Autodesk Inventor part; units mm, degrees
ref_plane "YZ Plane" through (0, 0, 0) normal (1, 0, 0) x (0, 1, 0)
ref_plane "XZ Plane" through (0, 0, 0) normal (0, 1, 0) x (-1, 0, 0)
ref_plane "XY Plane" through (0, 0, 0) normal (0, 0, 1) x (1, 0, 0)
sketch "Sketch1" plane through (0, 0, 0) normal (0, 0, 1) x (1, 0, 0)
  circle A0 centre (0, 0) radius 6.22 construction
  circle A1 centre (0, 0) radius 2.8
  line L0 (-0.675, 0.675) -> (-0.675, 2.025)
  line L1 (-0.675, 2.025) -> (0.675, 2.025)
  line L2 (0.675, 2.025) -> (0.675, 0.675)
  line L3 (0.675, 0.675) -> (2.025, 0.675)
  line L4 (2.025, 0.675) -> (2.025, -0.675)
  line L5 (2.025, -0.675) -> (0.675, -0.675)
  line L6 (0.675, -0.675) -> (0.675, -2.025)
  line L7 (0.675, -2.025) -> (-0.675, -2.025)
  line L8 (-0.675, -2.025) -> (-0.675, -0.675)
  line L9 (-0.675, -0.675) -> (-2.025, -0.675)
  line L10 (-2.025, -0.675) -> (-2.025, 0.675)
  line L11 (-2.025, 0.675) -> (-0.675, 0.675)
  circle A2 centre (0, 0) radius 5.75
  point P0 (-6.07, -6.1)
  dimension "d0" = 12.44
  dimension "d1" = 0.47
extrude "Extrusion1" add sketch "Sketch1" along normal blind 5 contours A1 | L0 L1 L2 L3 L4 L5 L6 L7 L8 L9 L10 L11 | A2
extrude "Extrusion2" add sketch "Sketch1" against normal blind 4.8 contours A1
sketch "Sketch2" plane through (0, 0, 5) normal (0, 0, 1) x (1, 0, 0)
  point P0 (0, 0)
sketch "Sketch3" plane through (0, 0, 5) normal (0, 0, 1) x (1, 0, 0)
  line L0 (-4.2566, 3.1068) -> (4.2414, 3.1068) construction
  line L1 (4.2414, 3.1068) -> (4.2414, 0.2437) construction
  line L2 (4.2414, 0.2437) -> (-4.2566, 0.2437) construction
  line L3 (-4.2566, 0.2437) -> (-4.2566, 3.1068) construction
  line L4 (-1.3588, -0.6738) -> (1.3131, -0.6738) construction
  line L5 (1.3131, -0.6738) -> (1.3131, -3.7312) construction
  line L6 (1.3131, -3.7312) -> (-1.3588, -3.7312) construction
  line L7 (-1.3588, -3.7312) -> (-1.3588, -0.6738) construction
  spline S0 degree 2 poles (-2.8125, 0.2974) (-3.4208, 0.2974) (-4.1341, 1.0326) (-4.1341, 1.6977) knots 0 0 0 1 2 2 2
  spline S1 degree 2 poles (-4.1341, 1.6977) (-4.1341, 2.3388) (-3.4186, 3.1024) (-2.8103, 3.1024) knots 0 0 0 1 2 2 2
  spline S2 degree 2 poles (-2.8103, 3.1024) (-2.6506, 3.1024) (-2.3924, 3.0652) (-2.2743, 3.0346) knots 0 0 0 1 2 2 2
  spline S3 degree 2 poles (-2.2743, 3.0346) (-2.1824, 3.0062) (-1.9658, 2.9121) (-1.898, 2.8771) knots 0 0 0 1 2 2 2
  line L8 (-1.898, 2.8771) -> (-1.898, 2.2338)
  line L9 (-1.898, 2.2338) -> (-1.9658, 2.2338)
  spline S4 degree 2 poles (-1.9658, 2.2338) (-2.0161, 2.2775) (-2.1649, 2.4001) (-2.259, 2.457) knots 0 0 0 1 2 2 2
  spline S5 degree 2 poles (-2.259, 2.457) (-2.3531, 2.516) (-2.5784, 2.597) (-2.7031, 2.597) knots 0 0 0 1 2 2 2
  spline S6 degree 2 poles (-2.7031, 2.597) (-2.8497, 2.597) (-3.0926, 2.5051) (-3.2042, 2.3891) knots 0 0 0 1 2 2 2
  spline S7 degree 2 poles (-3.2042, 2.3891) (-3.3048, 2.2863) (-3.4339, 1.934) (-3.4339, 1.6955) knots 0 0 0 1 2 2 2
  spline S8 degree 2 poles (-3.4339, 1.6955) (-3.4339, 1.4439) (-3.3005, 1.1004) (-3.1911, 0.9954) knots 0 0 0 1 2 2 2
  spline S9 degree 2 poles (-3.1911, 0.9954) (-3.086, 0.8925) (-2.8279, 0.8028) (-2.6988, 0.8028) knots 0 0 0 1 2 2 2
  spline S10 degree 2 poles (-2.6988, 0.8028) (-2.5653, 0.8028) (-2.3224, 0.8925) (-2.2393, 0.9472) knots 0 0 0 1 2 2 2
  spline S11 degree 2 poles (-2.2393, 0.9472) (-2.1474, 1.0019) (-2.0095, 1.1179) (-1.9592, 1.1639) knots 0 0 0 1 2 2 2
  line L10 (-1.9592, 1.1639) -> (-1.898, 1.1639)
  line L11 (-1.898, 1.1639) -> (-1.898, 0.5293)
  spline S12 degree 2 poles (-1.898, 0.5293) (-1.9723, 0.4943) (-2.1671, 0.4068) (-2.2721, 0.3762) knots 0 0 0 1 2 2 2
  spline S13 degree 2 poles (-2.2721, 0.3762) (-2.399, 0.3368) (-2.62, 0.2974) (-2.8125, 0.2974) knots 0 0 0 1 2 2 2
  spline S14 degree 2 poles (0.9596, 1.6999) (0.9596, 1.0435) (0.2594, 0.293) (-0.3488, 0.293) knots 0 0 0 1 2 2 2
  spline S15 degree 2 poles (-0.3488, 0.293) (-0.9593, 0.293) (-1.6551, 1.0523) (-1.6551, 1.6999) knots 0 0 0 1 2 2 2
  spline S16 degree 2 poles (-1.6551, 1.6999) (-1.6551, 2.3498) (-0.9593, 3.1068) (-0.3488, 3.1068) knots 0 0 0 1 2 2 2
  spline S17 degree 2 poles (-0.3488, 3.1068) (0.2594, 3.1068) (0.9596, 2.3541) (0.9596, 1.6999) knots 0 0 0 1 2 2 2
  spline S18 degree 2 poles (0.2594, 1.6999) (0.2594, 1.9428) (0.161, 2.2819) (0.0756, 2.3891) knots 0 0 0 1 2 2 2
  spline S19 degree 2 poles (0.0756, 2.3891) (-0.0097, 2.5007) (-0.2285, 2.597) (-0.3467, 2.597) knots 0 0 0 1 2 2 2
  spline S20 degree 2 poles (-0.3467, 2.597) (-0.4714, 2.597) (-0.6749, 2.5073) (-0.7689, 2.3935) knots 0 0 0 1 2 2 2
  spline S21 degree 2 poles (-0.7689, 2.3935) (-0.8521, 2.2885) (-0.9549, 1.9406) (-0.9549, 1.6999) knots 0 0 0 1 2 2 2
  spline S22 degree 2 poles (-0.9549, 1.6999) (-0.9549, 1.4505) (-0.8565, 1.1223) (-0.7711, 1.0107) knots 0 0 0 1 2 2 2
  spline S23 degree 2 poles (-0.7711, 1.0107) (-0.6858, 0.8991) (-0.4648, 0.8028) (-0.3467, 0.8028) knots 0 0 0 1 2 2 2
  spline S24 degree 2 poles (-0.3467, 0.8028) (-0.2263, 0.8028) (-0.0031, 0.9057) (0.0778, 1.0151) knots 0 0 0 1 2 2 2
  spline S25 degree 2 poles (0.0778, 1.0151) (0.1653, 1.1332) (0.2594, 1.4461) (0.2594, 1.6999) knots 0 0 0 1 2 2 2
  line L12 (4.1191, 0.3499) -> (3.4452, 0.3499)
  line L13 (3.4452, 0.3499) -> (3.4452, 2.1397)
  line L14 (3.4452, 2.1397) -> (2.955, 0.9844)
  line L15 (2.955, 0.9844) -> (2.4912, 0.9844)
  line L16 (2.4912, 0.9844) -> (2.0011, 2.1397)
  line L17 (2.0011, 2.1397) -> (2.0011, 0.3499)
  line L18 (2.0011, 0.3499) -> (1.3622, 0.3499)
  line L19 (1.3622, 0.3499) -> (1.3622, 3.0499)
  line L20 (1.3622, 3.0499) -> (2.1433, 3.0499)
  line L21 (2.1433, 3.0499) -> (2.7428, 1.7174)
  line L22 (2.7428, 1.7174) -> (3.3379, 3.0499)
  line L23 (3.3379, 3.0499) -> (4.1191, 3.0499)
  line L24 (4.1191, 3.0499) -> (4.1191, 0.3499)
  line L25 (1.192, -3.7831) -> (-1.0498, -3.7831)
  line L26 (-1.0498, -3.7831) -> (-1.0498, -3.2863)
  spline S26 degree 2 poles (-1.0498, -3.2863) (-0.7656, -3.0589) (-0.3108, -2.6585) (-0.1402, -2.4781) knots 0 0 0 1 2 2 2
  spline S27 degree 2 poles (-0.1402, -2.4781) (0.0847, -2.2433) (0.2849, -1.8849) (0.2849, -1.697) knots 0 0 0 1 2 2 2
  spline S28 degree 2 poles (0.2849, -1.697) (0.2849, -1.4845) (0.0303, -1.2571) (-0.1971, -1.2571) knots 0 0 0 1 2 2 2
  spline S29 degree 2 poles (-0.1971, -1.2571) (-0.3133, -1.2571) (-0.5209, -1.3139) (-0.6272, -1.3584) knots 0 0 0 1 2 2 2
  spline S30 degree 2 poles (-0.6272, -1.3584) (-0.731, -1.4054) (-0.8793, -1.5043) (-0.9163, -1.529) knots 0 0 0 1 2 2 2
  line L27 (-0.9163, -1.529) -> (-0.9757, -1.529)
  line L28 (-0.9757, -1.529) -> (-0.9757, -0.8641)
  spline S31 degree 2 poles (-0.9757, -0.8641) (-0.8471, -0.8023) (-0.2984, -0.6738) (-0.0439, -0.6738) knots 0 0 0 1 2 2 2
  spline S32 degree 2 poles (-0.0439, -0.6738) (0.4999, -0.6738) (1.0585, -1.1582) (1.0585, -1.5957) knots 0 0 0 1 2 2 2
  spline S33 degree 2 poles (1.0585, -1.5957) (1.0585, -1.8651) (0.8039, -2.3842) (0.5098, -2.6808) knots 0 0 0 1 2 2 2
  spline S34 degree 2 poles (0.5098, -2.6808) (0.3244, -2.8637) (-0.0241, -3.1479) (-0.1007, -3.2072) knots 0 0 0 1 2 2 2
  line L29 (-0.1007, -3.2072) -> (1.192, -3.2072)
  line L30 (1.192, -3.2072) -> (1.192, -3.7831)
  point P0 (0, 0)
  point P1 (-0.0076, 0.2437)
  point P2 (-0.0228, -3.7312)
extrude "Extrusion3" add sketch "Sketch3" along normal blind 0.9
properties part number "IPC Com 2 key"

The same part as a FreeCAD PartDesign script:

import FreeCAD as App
import Part
import Sketcher


def add_polygon(sketch, points):
    """Adds a closed chain of lines whose ends are joined by coincident constraints."""
    first, n = sketch.GeometryCount, len(points)
    for a, b in zip(points, points[1:] + points[:1]):
        sketch.addGeometry(Part.LineSegment(App.Vector(*a, 0), App.Vector(*b, 0)), False)
    for i in range(n):
        sketch.addConstraint(Sketcher.Constraint("Coincident", first + i, 2, first + (i + 1) % n, 1))

doc = App.newDocument("Part")
body = doc.addObject("PartDesign::Body", "Body")

sketch1 = body.newObject("Sketcher::SketchObject", "Sketch")
sketch1.AttachmentSupport = (doc.getObject("XY_Plane"), [""])
sketch1.MapMode = "FlatFace"
sketch1.addGeometry(Part.Circle(App.Vector(0, 0, 0), App.Vector(0, 0, 1), 6), False)
sketch1.addConstraint(Sketcher.Constraint("Coincident", 0, 3, -1, 1))
sketch1.addConstraint(Sketcher.Constraint("Diameter", 0, 11.5))
pad1 = body.newObject("PartDesign::Pad", "Pad")
pad1.Profile = sketch1
pad1.Length = 5

sketch2 = body.newObject("Sketcher::SketchObject", "Sketch001")
sketch2.AttachmentSupport = (doc.getObject("XY_Plane"), [""])
sketch2.MapMode = "FlatFace"
sketch2.addGeometry(Part.Circle(App.Vector(0, 0, 0), App.Vector(0, 0, 1), 2.8), False)
add_polygon(sketch2, [(-2, 0.7), (-0.7, 0.7), (-0.7, 2), (0.7, 2), (0.7, 0.7), (2, 0.7), (2, -0.7), (0.7, -0.7), (0.7, -2), (-0.7, -2), (-0.7, -0.7), (-2, -0.7)])
sketch2.addConstraint(Sketcher.Constraint("Horizontal", 1))
sketch2.addConstraint(Sketcher.Constraint("Vertical", 2))
sketch2.addConstraint(Sketcher.Constraint("Horizontal", 3))
sketch2.addConstraint(Sketcher.Constraint("Vertical", 4))
sketch2.addConstraint(Sketcher.Constraint("Horizontal", 5))
sketch2.addConstraint(Sketcher.Constraint("Vertical", 6))
sketch2.addConstraint(Sketcher.Constraint("Horizontal", 7))
sketch2.addConstraint(Sketcher.Constraint("Vertical", 8))
sketch2.addConstraint(Sketcher.Constraint("Horizontal", 9))
sketch2.addConstraint(Sketcher.Constraint("Vertical", 10))
sketch2.addConstraint(Sketcher.Constraint("Horizontal", 11))
sketch2.addConstraint(Sketcher.Constraint("Vertical", 12))
sketch2.addConstraint(Sketcher.Constraint("Coincident", 0, 3, -1, 1))
sketch2.addConstraint(Sketcher.Constraint("Symmetric", 1, 2, 7, 2, -1, 1))
sketch2.addConstraint(Sketcher.Constraint("Symmetric", 3, 2, 9, 2, -1, 1))
sketch2.addConstraint(Sketcher.Constraint("Symmetric", 5, 2, 11, 2, -1, 1))
sketch2.addConstraint(Sketcher.Constraint("Symmetric", 1, 2, 4, 2, -2))
sketch2.addConstraint(Sketcher.Constraint("Equal", 1, 3))
sketch2.addConstraint(Sketcher.Constraint("Equal", 11, 2))
sketch2.addConstraint(Sketcher.Constraint("Equal", 4, 6))
sketch2.addConstraint(Sketcher.Constraint("Diameter", 0, 5.6))
sketch2.addConstraint(Sketcher.Constraint("DistanceX", 1, 1, 1, 2, 1.35))
pad2 = body.newObject("PartDesign::Pad", "Pad001")
pad2.Profile = sketch2
pad2.Length = 4.8
pad2.Reversed = True

sketch3 = body.newObject("Sketcher::SketchObject", "Sketch002")
sketch3.AttachmentSupport = (doc.getObject("XY_Plane"), [""])
sketch3.MapMode = "FlatFace"
sketch3.AttachmentOffset = App.Placement(App.Vector(0, 0, 5), App.Rotation())
sketch3.addGeometry(Part.BSplineCurve([App.Vector(-2.8125, 0.2974, 0), App.Vector(-3.4208, 0.2974, 0), App.Vector(-4.1341, 1.0326, 0), App.Vector(-4.1341, 1.6977, 0)], [3, 1, 3], [0, 1, 2], False, 2, [1, 1, 1, 1], False), False)
sketch3.addGeometry(Part.BSplineCurve([App.Vector(-2.2721, 0.3762, 0), App.Vector(-2.399, 0.3368, 0), App.Vector(-2.62, 0.2974, 0), App.Vector(-2.8125, 0.2974, 0)], [3, 1, 3], [0, 1, 2], False, 2, [1, 1, 1, 1], False), False)
sketch3.addGeometry(Part.BSplineCurve([App.Vector(-1.898, 0.5293, 0), App.Vector(-1.9723, 0.4943, 0), App.Vector(-2.1671, 0.4068, 0), App.Vector(-2.2721, 0.3762, 0)], [3, 1, 3], [0, 1, 2], False, 2, [1, 1, 1, 1], False), False)
sketch3.addGeometry(Part.LineSegment(App.Vector(-1.898, 0.5293, 0), App.Vector(-1.898, 1.1639, 0)), False)
sketch3.addGeometry(Part.LineSegment(App.Vector(-1.898, 1.1639, 0), App.Vector(-1.9592, 1.1639, 0)), False)
sketch3.addGeometry(Part.BSplineCurve([App.Vector(-2.2393, 0.9472, 0), App.Vector(-2.1474, 1.0019, 0), App.Vector(-2.0095, 1.1179, 0), App.Vector(-1.9592, 1.1639, 0)], [3, 1, 3], [0, 1, 2], False, 2, [1, 1, 1, 1], False), False)
sketch3.addGeometry(Part.BSplineCurve([App.Vector(-2.6988, 0.8028, 0), App.Vector(-2.5653, 0.8028, 0), App.Vector(-2.3224, 0.8925, 0), App.Vector(-2.2393, 0.9472, 0)], [3, 1, 3], [0, 1, 2], False, 2, [1, 1, 1, 1], False), False)
sketch3.addGeometry(Part.BSplineCurve([App.Vector(-3.1911, 0.9954, 0), App.Vector(-3.086, 0.8925, 0), App.Vector(-2.8279, 0.8028, 0), App.Vector(-2.6988, 0.8028, 0)], [3, 1, 3], [0, 1, 2], False, 2, [1, 1, 1, 1], False), False)
sketch3.addGeometry(Part.BSplineCurve([App.Vector(-3.4339, 1.6955, 0), App.Vector(-3.4339, 1.4439, 0), App.Vector(-3.3005, 1.1004, 0), App.Vector(-3.1911, 0.9954, 0)], [3, 1, 3], [0, 1, 2], False, 2, [1, 1, 1, 1], False), False)
sketch3.addGeometry(Part.BSplineCurve([App.Vector(-3.2042, 2.3891, 0), App.Vector(-3.3048, 2.2863, 0), App.Vector(-3.4339, 1.934, 0), App.Vector(-3.4339, 1.6955, 0)], [3, 1, 3], [0, 1, 2], False, 2, [1, 1, 1, 1], False), False)
sketch3.addGeometry(Part.BSplineCurve([App.Vector(-2.7031, 2.597, 0), App.Vector(-2.8497, 2.597, 0), App.Vector(-3.0926, 2.5051, 0), App.Vector(-3.2042, 2.3891, 0)], [3, 1, 3], [0, 1, 2], False, 2, [1, 1, 1, 1], False), False)
sketch3.addGeometry(Part.BSplineCurve([App.Vector(-2.259, 2.457, 0), App.Vector(-2.3531, 2.516, 0), App.Vector(-2.5784, 2.597, 0), App.Vector(-2.7031, 2.597, 0)], [3, 1, 3], [0, 1, 2], False, 2, [1, 1, 1, 1], False), False)
sketch3.addGeometry(Part.BSplineCurve([App.Vector(-1.9658, 2.2338, 0), App.Vector(-2.0161, 2.2775, 0), App.Vector(-2.1649, 2.4001, 0), App.Vector(-2.259, 2.457, 0)], [3, 1, 3], [0, 1, 2], False, 2, [1, 1, 1, 1], False), False)
sketch3.addGeometry(Part.LineSegment(App.Vector(-1.9658, 2.2338, 0), App.Vector(-1.898, 2.2338, 0)), False)
sketch3.addGeometry(Part.LineSegment(App.Vector(-1.898, 2.2338, 0), App.Vector(-1.898, 2.8771, 0)), False)
sketch3.addGeometry(Part.BSplineCurve([App.Vector(-2.2743, 3.0346, 0), App.Vector(-2.1824, 3.0062, 0), App.Vector(-1.9658, 2.9121, 0), App.Vector(-1.898, 2.8771, 0)], [3, 1, 3], [0, 1, 2], False, 2, [1, 1, 1, 1], False), False)
sketch3.addGeometry(Part.BSplineCurve([App.Vector(-2.8103, 3.1024, 0), App.Vector(-2.6506, 3.1024, 0), App.Vector(-2.3924, 3.0652, 0), App.Vector(-2.2743, 3.0346, 0)], [3, 1, 3], [0, 1, 2], False, 2, [1, 1, 1, 1], False), False)
sketch3.addGeometry(Part.BSplineCurve([App.Vector(-4.1341, 1.6977, 0), App.Vector(-4.1341, 2.3388, 0), App.Vector(-3.4186, 3.1024, 0), App.Vector(-2.8103, 3.1024, 0)], [3, 1, 3], [0, 1, 2], False, 2, [1, 1, 1, 1], False), False)
sketch3.addGeometry(Part.BSplineCurve([App.Vector(0.9596, 1.6999, 0), App.Vector(0.9596, 1.0435, 0), App.Vector(0.2594, 0.293, 0), App.Vector(-0.3488, 0.293, 0)], [3, 1, 3], [0, 1, 2], False, 2, [1, 1, 1, 1], False), False)
sketch3.addGeometry(Part.BSplineCurve([App.Vector(-0.3488, 3.1068, 0), App.Vector(0.2594, 3.1068, 0), App.Vector(0.9596, 2.3541, 0), App.Vector(0.9596, 1.6999, 0)], [3, 1, 3], [0, 1, 2], False, 2, [1, 1, 1, 1], False), False)
sketch3.addGeometry(Part.BSplineCurve([App.Vector(-1.6551, 1.6999, 0), App.Vector(-1.6551, 2.3498, 0), App.Vector(-0.9593, 3.1068, 0), App.Vector(-0.3488, 3.1068, 0)], [3, 1, 3], [0, 1, 2], False, 2, [1, 1, 1, 1], False), False)
sketch3.addGeometry(Part.BSplineCurve([App.Vector(-0.3488, 0.293, 0), App.Vector(-0.9593, 0.293, 0), App.Vector(-1.6551, 1.0523, 0), App.Vector(-1.6551, 1.6999, 0)], [3, 1, 3], [0, 1, 2], False, 2, [1, 1, 1, 1], False), False)
sketch3.addGeometry(Part.BSplineCurve([App.Vector(0.2594, 1.6999, 0), App.Vector(0.2594, 1.9428, 0), App.Vector(0.161, 2.2819, 0), App.Vector(0.0756, 2.3891, 0)], [3, 1, 3], [0, 1, 2], False, 2, [1, 1, 1, 1], False), False)
sketch3.addGeometry(Part.BSplineCurve([App.Vector(0.0778, 1.0151, 0), App.Vector(0.1653, 1.1332, 0), App.Vector(0.2594, 1.4461, 0), App.Vector(0.2594, 1.6999, 0)], [3, 1, 3], [0, 1, 2], False, 2, [1, 1, 1, 1], False), False)
sketch3.addGeometry(Part.BSplineCurve([App.Vector(-0.3467, 0.8028, 0), App.Vector(-0.2263, 0.8028, 0), App.Vector(-0.0031, 0.9057, 0), App.Vector(0.0778, 1.0151, 0)], [3, 1, 3], [0, 1, 2], False, 2, [1, 1, 1, 1], False), False)
sketch3.addGeometry(Part.BSplineCurve([App.Vector(-0.7711, 1.0107, 0), App.Vector(-0.6858, 0.8991, 0), App.Vector(-0.4648, 0.8028, 0), App.Vector(-0.3467, 0.8028, 0)], [3, 1, 3], [0, 1, 2], False, 2, [1, 1, 1, 1], False), False)
sketch3.addGeometry(Part.BSplineCurve([App.Vector(-0.9549, 1.6999, 0), App.Vector(-0.9549, 1.4505, 0), App.Vector(-0.8565, 1.1223, 0), App.Vector(-0.7711, 1.0107, 0)], [3, 1, 3], [0, 1, 2], False, 2, [1, 1, 1, 1], False), False)
sketch3.addGeometry(Part.BSplineCurve([App.Vector(-0.7689, 2.3935, 0), App.Vector(-0.8521, 2.2885, 0), App.Vector(-0.9549, 1.9406, 0), App.Vector(-0.9549, 1.6999, 0)], [3, 1, 3], [0, 1, 2], False, 2, [1, 1, 1, 1], False), False)
sketch3.addGeometry(Part.BSplineCurve([App.Vector(-0.3467, 2.597, 0), App.Vector(-0.4714, 2.597, 0), App.Vector(-0.6749, 2.5073, 0), App.Vector(-0.7689, 2.3935, 0)], [3, 1, 3], [0, 1, 2], False, 2, [1, 1, 1, 1], False), False)
sketch3.addGeometry(Part.BSplineCurve([App.Vector(0.0756, 2.3891, 0), App.Vector(-0.0097, 2.5007, 0), App.Vector(-0.2285, 2.597, 0), App.Vector(-0.3467, 2.597, 0)], [3, 1, 3], [0, 1, 2], False, 2, [1, 1, 1, 1], False), False)
add_polygon(sketch3, [(3.4452, 0.3499), (4.1191, 0.3499), (4.1191, 3.0499), (3.3379, 3.0499), (2.7428, 1.7174), (2.1433, 3.0499), (1.3622, 3.0499), (1.3622, 0.3499), (2.0011, 0.3499), (2.0011, 2.1397), (2.4912, 0.9844), (2.955, 0.9844), (3.4452, 2.1397)])
sketch3.addGeometry(Part.LineSegment(App.Vector(-1.0498, -3.7831, 0), App.Vector(1.192, -3.7831, 0)), False)
sketch3.addGeometry(Part.LineSegment(App.Vector(1.192, -3.7831, 0), App.Vector(1.192, -3.2072, 0)), False)
sketch3.addGeometry(Part.LineSegment(App.Vector(1.192, -3.2072, 0), App.Vector(-0.1007, -3.2072, 0)), False)
sketch3.addGeometry(Part.BSplineCurve([App.Vector(0.5098, -2.6808, 0), App.Vector(0.3244, -2.8637, 0), App.Vector(-0.0241, -3.1479, 0), App.Vector(-0.1007, -3.2072, 0)], [3, 1, 3], [0, 1, 2], False, 2, [1, 1, 1, 1], False), False)
sketch3.addGeometry(Part.BSplineCurve([App.Vector(1.0585, -1.5957, 0), App.Vector(1.0585, -1.8651, 0), App.Vector(0.8039, -2.3842, 0), App.Vector(0.5098, -2.6808, 0)], [3, 1, 3], [0, 1, 2], False, 2, [1, 1, 1, 1], False), False)
sketch3.addGeometry(Part.BSplineCurve([App.Vector(-0.0439, -0.6738, 0), App.Vector(0.4999, -0.6738, 0), App.Vector(1.0585, -1.1582, 0), App.Vector(1.0585, -1.5957, 0)], [3, 1, 3], [0, 1, 2], False, 2, [1, 1, 1, 1], False), False)
sketch3.addGeometry(Part.BSplineCurve([App.Vector(-0.9757, -0.8641, 0), App.Vector(-0.8471, -0.8023, 0), App.Vector(-0.2984, -0.6738, 0), App.Vector(-0.0439, -0.6738, 0)], [3, 1, 3], [0, 1, 2], False, 2, [1, 1, 1, 1], False), False)
sketch3.addGeometry(Part.LineSegment(App.Vector(-0.9757, -0.8641, 0), App.Vector(-0.9757, -1.529, 0)), False)
sketch3.addGeometry(Part.LineSegment(App.Vector(-0.9757, -1.529, 0), App.Vector(-0.9163, -1.529, 0)), False)
sketch3.addGeometry(Part.BSplineCurve([App.Vector(-0.6272, -1.3584, 0), App.Vector(-0.731, -1.4054, 0), App.Vector(-0.8793, -1.5043, 0), App.Vector(-0.9163, -1.529, 0)], [3, 1, 3], [0, 1, 2], False, 2, [1, 1, 1, 1], False), False)
sketch3.addGeometry(Part.BSplineCurve([App.Vector(-0.1971, -1.2571, 0), App.Vector(-0.3133, -1.2571, 0), App.Vector(-0.5209, -1.3139, 0), App.Vector(-0.6272, -1.3584, 0)], [3, 1, 3], [0, 1, 2], False, 2, [1, 1, 1, 1], False), False)
sketch3.addGeometry(Part.BSplineCurve([App.Vector(0.2849, -1.697, 0), App.Vector(0.2849, -1.4845, 0), App.Vector(0.0303, -1.2571, 0), App.Vector(-0.1971, -1.2571, 0)], [3, 1, 3], [0, 1, 2], False, 2, [1, 1, 1, 1], False), False)
sketch3.addGeometry(Part.BSplineCurve([App.Vector(-0.1402, -2.4781, 0), App.Vector(0.0847, -2.2433, 0), App.Vector(0.2849, -1.8849, 0), App.Vector(0.2849, -1.697, 0)], [3, 1, 3], [0, 1, 2], False, 2, [1, 1, 1, 1], False), False)
sketch3.addGeometry(Part.BSplineCurve([App.Vector(-1.0498, -3.2863, 0), App.Vector(-0.7656, -3.0589, 0), App.Vector(-0.3108, -2.6585, 0), App.Vector(-0.1402, -2.4781, 0)], [3, 1, 3], [0, 1, 2], False, 2, [1, 1, 1, 1], False), False)
sketch3.addGeometry(Part.LineSegment(App.Vector(-1.0498, -3.2863, 0), App.Vector(-1.0498, -3.7831, 0)), False)
sketch3.addConstraint(Sketcher.Constraint("Block", 0))
sketch3.addConstraint(Sketcher.Constraint("Block", 1))
sketch3.addConstraint(Sketcher.Constraint("Block", 2))
sketch3.addConstraint(Sketcher.Constraint("Block", 5))
sketch3.addConstraint(Sketcher.Constraint("Block", 6))
sketch3.addConstraint(Sketcher.Constraint("Block", 7))
sketch3.addConstraint(Sketcher.Constraint("Block", 8))
sketch3.addConstraint(Sketcher.Constraint("Block", 9))
sketch3.addConstraint(Sketcher.Constraint("Block", 10))
sketch3.addConstraint(Sketcher.Constraint("Block", 11))
sketch3.addConstraint(Sketcher.Constraint("Block", 12))
sketch3.addConstraint(Sketcher.Constraint("Block", 15))
sketch3.addConstraint(Sketcher.Constraint("Block", 16))
sketch3.addConstraint(Sketcher.Constraint("Block", 17))
sketch3.addConstraint(Sketcher.Constraint("Block", 18))
sketch3.addConstraint(Sketcher.Constraint("Block", 19))
sketch3.addConstraint(Sketcher.Constraint("Block", 20))
sketch3.addConstraint(Sketcher.Constraint("Block", 21))
sketch3.addConstraint(Sketcher.Constraint("Block", 22))
sketch3.addConstraint(Sketcher.Constraint("Block", 23))
sketch3.addConstraint(Sketcher.Constraint("Block", 24))
sketch3.addConstraint(Sketcher.Constraint("Block", 25))
sketch3.addConstraint(Sketcher.Constraint("Block", 26))
sketch3.addConstraint(Sketcher.Constraint("Block", 27))
sketch3.addConstraint(Sketcher.Constraint("Block", 28))
sketch3.addConstraint(Sketcher.Constraint("Block", 29))
sketch3.addConstraint(Sketcher.Constraint("Block", 46))
sketch3.addConstraint(Sketcher.Constraint("Block", 47))
sketch3.addConstraint(Sketcher.Constraint("Block", 48))
sketch3.addConstraint(Sketcher.Constraint("Block", 49))
sketch3.addConstraint(Sketcher.Constraint("Block", 52))
sketch3.addConstraint(Sketcher.Constraint("Block", 53))
sketch3.addConstraint(Sketcher.Constraint("Block", 54))
sketch3.addConstraint(Sketcher.Constraint("Block", 55))
sketch3.addConstraint(Sketcher.Constraint("Block", 56))
sketch3.addConstraint(Sketcher.Constraint("Coincident", 2, 1, 3, 1))
sketch3.addConstraint(Sketcher.Constraint("Coincident", 3, 2, 4, 1))
sketch3.addConstraint(Sketcher.Constraint("Coincident", 4, 2, 5, 2))
sketch3.addConstraint(Sketcher.Constraint("Coincident", 12, 1, 13, 1))
sketch3.addConstraint(Sketcher.Constraint("Coincident", 13, 2, 14, 1))
sketch3.addConstraint(Sketcher.Constraint("Coincident", 14, 2, 15, 2))
sketch3.addConstraint(Sketcher.Constraint("Coincident", 43, 2, 44, 1))
sketch3.addConstraint(Sketcher.Constraint("Coincident", 44, 2, 45, 1))
sketch3.addConstraint(Sketcher.Constraint("Coincident", 45, 2, 46, 2))
sketch3.addConstraint(Sketcher.Constraint("Coincident", 49, 1, 50, 1))
sketch3.addConstraint(Sketcher.Constraint("Coincident", 50, 2, 51, 1))
sketch3.addConstraint(Sketcher.Constraint("Coincident", 51, 2, 52, 2))
sketch3.addConstraint(Sketcher.Constraint("Coincident", 56, 1, 57, 1))
sketch3.addConstraint(Sketcher.Constraint("Coincident", 57, 2, 43, 1))
sketch3.addConstraint(Sketcher.Constraint("Vertical", 3))
sketch3.addConstraint(Sketcher.Constraint("Horizontal", 4))
sketch3.addConstraint(Sketcher.Constraint("Horizontal", 13))
sketch3.addConstraint(Sketcher.Constraint("Vertical", 14))
sketch3.addConstraint(Sketcher.Constraint("Horizontal", 30))
sketch3.addConstraint(Sketcher.Constraint("Vertical", 31))
sketch3.addConstraint(Sketcher.Constraint("Horizontal", 32))
sketch3.addConstraint(Sketcher.Constraint("Horizontal", 35))
sketch3.addConstraint(Sketcher.Constraint("Vertical", 36))
sketch3.addConstraint(Sketcher.Constraint("Horizontal", 37))
sketch3.addConstraint(Sketcher.Constraint("Vertical", 38))
sketch3.addConstraint(Sketcher.Constraint("Horizontal", 40))
sketch3.addConstraint(Sketcher.Constraint("Vertical", 42))
sketch3.addConstraint(Sketcher.Constraint("Horizontal", 43))
sketch3.addConstraint(Sketcher.Constraint("Vertical", 44))
sketch3.addConstraint(Sketcher.Constraint("Horizontal", 45))
sketch3.addConstraint(Sketcher.Constraint("Vertical", 50))
sketch3.addConstraint(Sketcher.Constraint("Horizontal", 51))
sketch3.addConstraint(Sketcher.Constraint("Vertical", 57))
sketch3.addConstraint(Sketcher.Constraint("Horizontal", 32, 2, 34, 2))
sketch3.addConstraint(Sketcher.Constraint("Horizontal", 30, 2, 36, 2))
sketch3.addConstraint(Sketcher.Constraint("Horizontal", 38, 2, 41, 2))
sketch3.addConstraint(Sketcher.Constraint("Equal", 32, 35))
sketch3.addConstraint(Sketcher.Constraint("Equal", 39, 41))
sketch3.addConstraint(Sketcher.Constraint("DistanceY", 31, 1, 31, 2, 2.7))
sketch3.addConstraint(Sketcher.Constraint("DistanceX", 30, 1, 30, 2, 0.674))
sketch3.addConstraint(Sketcher.Constraint("DistanceX", 35, 2, 35, 1, 0.781))
sketch3.addConstraint(Sketcher.Constraint("DistanceX", 37, 1, 37, 2, 0.639))
sketch3.addConstraint(Sketcher.Constraint("DistanceY", 44, 1, 44, 2, 0.576))
sketch3.addConstraint(Sketcher.Constraint("DistanceY", -1, 1, 30, 2, 0.35))
sketch3.addConstraint(Sketcher.Constraint("DistanceX", 37, 2, 39, 2, 0.49))
sketch3.addConstraint(Sketcher.Constraint("Distance", 39, 1.255))
sketch3.addConstraint(Sketcher.Constraint("DistanceX", 40, 1, 40, 2, 0.4638))
sketch3.addConstraint(Sketcher.Constraint("DistanceX", 43, 1, 43, 2, 2.2418))
sketch3.addConstraint(Sketcher.Constraint("DistanceY", 38, 1, 38, 2, 1.7898))
sketch3.addConstraint(Sketcher.Constraint("DistanceX", -1, 1, 30, 2, 4.119))
sketch3.addConstraint(Sketcher.Constraint("DistanceX", 33, 2, 32, 2, 0.595))
sketch3.addConstraint(Sketcher.Constraint("DistanceY", 39, 2, 33, 2, 0.733))
pad3 = body.newObject("PartDesign::Pad", "Pad002")
pad3.Profile = sketch3
pad3.Length = 0.9

doc.recompute()
